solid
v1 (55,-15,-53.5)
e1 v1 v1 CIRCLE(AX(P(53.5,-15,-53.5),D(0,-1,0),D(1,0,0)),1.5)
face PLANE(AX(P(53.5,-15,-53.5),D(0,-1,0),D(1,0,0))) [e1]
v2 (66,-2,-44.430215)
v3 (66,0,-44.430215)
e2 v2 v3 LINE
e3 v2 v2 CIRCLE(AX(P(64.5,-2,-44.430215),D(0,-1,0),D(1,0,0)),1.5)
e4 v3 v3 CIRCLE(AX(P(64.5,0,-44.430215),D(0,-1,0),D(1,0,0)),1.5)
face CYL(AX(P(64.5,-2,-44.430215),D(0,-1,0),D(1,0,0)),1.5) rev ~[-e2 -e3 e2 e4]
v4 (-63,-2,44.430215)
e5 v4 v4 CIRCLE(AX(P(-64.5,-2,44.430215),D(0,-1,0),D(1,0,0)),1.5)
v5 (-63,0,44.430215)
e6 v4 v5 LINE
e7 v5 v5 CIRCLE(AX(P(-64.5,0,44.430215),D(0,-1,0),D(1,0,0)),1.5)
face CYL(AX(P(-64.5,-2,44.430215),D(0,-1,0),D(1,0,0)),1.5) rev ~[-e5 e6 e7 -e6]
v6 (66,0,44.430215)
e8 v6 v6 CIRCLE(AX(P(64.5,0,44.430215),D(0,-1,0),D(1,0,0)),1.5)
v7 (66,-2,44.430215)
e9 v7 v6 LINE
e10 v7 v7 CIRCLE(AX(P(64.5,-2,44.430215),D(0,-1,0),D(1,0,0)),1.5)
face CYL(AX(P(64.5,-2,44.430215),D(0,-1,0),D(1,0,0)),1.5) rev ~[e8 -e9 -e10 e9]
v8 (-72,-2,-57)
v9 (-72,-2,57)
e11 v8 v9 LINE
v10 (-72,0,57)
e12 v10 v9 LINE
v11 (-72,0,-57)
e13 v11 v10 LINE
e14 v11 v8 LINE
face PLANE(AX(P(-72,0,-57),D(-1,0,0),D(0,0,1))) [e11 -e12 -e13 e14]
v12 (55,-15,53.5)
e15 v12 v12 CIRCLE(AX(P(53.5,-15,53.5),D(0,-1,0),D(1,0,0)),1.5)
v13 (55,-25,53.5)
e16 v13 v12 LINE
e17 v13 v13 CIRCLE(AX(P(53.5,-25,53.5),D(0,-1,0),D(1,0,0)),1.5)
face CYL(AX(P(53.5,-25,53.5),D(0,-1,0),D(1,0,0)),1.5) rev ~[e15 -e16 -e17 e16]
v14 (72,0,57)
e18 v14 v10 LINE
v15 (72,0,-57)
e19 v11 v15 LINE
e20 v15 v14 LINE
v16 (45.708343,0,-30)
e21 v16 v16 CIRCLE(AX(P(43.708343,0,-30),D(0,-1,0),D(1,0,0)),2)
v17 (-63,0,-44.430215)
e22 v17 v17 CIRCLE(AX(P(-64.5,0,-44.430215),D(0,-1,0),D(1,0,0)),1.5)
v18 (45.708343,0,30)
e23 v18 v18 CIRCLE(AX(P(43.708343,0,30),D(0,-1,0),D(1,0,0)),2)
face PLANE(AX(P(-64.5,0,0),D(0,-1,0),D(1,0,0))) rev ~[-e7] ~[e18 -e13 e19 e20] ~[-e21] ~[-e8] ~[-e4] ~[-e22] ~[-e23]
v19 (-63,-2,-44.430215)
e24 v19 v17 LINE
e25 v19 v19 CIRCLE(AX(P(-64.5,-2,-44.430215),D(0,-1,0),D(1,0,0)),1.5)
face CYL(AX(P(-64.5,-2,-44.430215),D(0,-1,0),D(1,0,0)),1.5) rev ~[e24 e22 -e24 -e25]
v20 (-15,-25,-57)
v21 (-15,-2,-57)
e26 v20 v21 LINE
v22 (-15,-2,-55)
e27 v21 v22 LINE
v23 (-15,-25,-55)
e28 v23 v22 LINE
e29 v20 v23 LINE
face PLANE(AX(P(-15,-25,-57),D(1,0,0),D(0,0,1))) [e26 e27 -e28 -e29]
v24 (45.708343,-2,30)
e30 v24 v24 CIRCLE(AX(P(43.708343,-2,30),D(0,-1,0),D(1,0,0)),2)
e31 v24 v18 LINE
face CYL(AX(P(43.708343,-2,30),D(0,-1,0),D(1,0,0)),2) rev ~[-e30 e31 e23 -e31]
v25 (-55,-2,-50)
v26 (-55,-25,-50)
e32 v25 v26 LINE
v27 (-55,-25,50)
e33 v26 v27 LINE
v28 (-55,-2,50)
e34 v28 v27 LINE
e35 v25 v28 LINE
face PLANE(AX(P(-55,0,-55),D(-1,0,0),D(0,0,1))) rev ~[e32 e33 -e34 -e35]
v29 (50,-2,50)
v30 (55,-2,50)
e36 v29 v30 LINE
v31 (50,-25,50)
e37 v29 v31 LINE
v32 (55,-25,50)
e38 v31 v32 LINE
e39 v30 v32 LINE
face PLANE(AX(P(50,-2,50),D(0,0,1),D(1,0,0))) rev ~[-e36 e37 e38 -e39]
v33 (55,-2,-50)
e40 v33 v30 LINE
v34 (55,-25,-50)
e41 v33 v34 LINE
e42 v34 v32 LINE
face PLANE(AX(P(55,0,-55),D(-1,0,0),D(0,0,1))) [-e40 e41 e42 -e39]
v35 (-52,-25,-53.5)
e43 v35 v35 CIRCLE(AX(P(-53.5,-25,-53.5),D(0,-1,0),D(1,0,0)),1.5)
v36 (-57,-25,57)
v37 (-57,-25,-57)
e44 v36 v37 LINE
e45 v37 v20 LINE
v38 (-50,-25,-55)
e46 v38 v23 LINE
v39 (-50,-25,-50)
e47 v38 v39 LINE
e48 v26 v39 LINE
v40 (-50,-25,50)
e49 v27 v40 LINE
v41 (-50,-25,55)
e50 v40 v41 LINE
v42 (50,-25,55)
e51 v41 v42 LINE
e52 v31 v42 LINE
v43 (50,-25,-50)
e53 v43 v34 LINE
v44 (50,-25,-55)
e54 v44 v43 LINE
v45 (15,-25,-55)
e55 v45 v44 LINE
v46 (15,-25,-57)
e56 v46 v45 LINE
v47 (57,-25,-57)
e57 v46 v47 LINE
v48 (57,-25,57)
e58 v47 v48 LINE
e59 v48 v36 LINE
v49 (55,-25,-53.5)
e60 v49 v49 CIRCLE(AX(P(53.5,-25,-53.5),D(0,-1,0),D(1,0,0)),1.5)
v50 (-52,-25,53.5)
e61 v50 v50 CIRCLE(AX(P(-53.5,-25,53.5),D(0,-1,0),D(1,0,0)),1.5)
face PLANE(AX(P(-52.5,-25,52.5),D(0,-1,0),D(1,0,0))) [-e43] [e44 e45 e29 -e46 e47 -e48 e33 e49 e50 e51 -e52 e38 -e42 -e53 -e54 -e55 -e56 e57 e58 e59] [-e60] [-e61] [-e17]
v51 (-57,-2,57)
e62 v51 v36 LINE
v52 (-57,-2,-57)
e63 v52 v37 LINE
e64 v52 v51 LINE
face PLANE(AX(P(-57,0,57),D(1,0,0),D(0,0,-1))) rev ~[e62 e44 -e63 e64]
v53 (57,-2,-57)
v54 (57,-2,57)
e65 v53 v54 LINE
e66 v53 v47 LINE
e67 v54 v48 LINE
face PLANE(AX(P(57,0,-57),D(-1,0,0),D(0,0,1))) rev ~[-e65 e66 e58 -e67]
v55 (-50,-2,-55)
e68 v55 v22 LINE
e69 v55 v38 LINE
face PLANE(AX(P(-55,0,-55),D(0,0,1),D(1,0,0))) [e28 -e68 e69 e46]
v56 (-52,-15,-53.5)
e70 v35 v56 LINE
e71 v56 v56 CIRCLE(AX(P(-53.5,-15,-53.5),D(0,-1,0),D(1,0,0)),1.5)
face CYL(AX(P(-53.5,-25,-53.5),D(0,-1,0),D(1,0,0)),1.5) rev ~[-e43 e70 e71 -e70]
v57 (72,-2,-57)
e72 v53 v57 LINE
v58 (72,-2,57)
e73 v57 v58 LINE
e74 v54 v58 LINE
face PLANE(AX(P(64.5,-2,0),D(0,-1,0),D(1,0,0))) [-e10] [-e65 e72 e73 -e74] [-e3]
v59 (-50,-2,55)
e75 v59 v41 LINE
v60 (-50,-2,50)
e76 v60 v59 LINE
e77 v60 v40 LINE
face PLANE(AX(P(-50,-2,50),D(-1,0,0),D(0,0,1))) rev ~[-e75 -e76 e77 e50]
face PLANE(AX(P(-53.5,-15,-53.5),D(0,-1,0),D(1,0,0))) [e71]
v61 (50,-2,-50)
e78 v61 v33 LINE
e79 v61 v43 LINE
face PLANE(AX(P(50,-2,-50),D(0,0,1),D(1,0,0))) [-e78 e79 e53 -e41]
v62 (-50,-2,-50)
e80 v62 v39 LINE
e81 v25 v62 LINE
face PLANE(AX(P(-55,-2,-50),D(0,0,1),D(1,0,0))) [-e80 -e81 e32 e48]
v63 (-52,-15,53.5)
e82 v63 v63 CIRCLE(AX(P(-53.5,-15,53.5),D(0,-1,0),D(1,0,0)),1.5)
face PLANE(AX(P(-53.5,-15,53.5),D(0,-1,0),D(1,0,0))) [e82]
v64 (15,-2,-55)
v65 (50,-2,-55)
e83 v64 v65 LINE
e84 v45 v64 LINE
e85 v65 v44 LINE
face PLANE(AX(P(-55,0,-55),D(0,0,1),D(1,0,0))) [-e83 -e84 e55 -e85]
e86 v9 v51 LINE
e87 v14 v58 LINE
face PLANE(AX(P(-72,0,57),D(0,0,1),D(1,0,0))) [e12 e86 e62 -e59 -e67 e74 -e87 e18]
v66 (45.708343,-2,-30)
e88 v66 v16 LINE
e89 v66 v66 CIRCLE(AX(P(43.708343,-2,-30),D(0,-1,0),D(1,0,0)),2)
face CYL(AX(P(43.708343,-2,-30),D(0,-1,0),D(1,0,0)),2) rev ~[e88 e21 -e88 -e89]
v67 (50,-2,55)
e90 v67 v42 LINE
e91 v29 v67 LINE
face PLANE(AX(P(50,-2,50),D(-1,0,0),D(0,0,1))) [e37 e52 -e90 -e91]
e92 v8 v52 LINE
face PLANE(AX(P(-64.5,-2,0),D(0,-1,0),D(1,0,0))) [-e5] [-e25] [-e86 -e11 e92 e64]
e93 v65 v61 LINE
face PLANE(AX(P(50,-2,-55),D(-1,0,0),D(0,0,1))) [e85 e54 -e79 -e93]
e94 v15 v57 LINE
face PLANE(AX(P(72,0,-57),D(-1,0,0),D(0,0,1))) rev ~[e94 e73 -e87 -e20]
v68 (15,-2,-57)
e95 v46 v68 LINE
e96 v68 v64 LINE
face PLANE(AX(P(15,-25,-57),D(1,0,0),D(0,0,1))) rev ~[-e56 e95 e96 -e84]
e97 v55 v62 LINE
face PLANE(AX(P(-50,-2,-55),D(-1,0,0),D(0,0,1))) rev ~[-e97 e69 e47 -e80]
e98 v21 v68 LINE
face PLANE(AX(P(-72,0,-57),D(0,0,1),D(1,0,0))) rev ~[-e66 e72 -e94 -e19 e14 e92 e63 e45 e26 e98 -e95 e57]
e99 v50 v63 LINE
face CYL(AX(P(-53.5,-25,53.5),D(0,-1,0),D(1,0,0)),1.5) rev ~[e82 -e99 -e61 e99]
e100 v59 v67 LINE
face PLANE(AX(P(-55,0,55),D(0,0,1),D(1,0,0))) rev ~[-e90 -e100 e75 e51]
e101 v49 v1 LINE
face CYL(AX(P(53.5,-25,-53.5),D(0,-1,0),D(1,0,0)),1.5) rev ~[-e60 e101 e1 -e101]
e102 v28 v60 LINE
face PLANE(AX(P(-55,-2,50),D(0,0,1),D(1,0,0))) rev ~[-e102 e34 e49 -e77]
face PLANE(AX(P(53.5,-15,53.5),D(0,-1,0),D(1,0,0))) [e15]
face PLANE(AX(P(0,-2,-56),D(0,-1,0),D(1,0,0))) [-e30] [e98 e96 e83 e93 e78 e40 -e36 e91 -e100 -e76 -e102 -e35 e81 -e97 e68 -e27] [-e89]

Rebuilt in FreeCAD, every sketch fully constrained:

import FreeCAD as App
import Part
import Sketcher
Q = App.Units.Quantity

doc = App.newDocument("Part")
body = doc.addObject("PartDesign::Body", "Body")

# Sketch on XZ plane
sketch1 = body.newObject("Sketcher::SketchObject", "Sketch")
sketch1.AttachmentSupport = (doc.getObject("XZ_Plane"), [""])
sketch1.MapMode = "FlatFace"
sketch1.addGeometry([
    Part.LineSegment(App.Vector(-55, 55, 0), App.Vector(-55, -55, 0)),
    Part.LineSegment(App.Vector(-55, -55, 0), App.Vector(55, -55, 0)),
    Part.LineSegment(App.Vector(55, -55, 0), App.Vector(55, 55, 0)),
    Part.LineSegment(App.Vector(55, 55, 0), App.Vector(-55, 55, 0)),
], False)
sketch1.addConstraint([
    Sketcher.Constraint("Coincident", 0, 2, 1, 1),
    Sketcher.Constraint("Coincident", 1, 2, 2, 1),
    Sketcher.Constraint("Coincident", 2, 2, 3, 1),
    Sketcher.Constraint("Coincident", 3, 2, 0, 1),
    Sketcher.Constraint("Vertical", 0),
    Sketcher.Constraint("Horizontal", 1),
    Sketcher.Constraint("Vertical", 2),
    Sketcher.Constraint("Horizontal", 3),
    Sketcher.Constraint("Symmetric", 0, 2, 2, 2, -1, 1),
    Sketcher.Constraint("Equal", 3, 0),
    Sketcher.Constraint("DistanceX", 1, 1, 1, 2, Q("110 mm")),
])
pad1 = body.newObject("PartDesign::Pad", "Pad")
pad1.Profile = sketch1
pad1.Length = 2

# Sketch on XZ plane
sketch2 = body.newObject("Sketcher::SketchObject", "Sketch001")
sketch2.AttachmentSupport = (doc.getObject("XZ_Plane"), [""])
sketch2.MapMode = "FlatFace"
sketch2.addGeometry([
    Part.LineSegment(App.Vector(57, 57, 0), App.Vector(-57, 57, 0)),  # 0
    Part.LineSegment(App.Vector(-57, 57, 0), App.Vector(-57, -57, 0)),  # 1
    Part.LineSegment(App.Vector(-57, -57, 0), App.Vector(57, -57, 0)),  # 2
    Part.LineSegment(App.Vector(57, -57, 0), App.Vector(57, 57, 0)),  # 3
    Part.LineSegment(App.Vector(55, -55, 0), App.Vector(-55, -55, 0)),  # 4
    Part.LineSegment(App.Vector(-55, -55, 0), App.Vector(-55, 55, 0)),  # 5
    Part.LineSegment(App.Vector(-55, 55, 0), App.Vector(55, 55, 0)),  # 6
    Part.LineSegment(App.Vector(55, 55, 0), App.Vector(55, -55, 0)),  # 7
], False)
sketch2.addConstraint([
    Sketcher.Constraint("Coincident", 0, 2, 1, 1),
    Sketcher.Constraint("Coincident", 1, 2, 2, 1),
    Sketcher.Constraint("Coincident", 2, 2, 3, 1),
    Sketcher.Constraint("Coincident", 3, 2, 0, 1),
    Sketcher.Constraint("Coincident", 4, 2, 5, 1),
    Sketcher.Constraint("Coincident", 5, 2, 6, 1),
    Sketcher.Constraint("Coincident", 6, 2, 7, 1),
    Sketcher.Constraint("Coincident", 7, 2, 4, 1),
    Sketcher.Constraint("Horizontal", 0),
    Sketcher.Constraint("Vertical", 1),
    Sketcher.Constraint("Horizontal", 2),
    Sketcher.Constraint("Vertical", 3),
    Sketcher.Constraint("Horizontal", 4),
    Sketcher.Constraint("Vertical", 5),
    Sketcher.Constraint("Horizontal", 6),
    Sketcher.Constraint("Vertical", 7),
    Sketcher.Constraint("Symmetric", 0, 2, 2, 2, -1, 1),
    Sketcher.Constraint("Symmetric", 4, 2, 6, 2, -1, 1),
    Sketcher.Constraint("Equal", 2, 1),
    Sketcher.Constraint("Equal", 6, 5),
    Sketcher.Constraint("DistanceX", 0, 2, 0, 1, Q("114 mm")),
    Sketcher.Constraint("DistanceX", 4, 2, 4, 1, Q("110 mm")),
])
pad2 = body.newObject("PartDesign::Pad", "Pad001")
pad2.Profile = sketch2
pad2.Length = 25

# Sketch on XZ plane
sketch3 = body.newObject("Sketcher::SketchObject", "Sketch002")
sketch3.AttachmentSupport = (doc.getObject("XZ_Plane"), [""])
sketch3.MapMode = "FlatFace"
sketch3.AttachmentOffset = App.Placement(App.Vector(0, 0, 2), App.Rotation())
sketch3.addGeometry([
    Part.LineSegment(App.Vector(-55, 55, 0), App.Vector(-55, 50, 0)),  # 0
    Part.LineSegment(App.Vector(-55, 50, 0), App.Vector(-50, 50, 0)),  # 1
    Part.LineSegment(App.Vector(-50, 50, 0), App.Vector(-50, 55, 0)),  # 2
    Part.LineSegment(App.Vector(-50, 55, 0), App.Vector(-55, 55, 0)),  # 3
    Part.LineSegment(App.Vector(50, 55, 0), App.Vector(50, 50, 0)),  # 4
    Part.LineSegment(App.Vector(50, 50, 0), App.Vector(55, 50, 0)),  # 5
    Part.LineSegment(App.Vector(55, 50, 0), App.Vector(55, 55, 0)),  # 6
    Part.LineSegment(App.Vector(55, 55, 0), App.Vector(50, 55, 0)),  # 7
    Part.LineSegment(App.Vector(-55, -50, 0), App.Vector(-55, -55, 0)),  # 8
    Part.LineSegment(App.Vector(-55, -55, 0), App.Vector(-50, -55, 0)),  # 9
    Part.LineSegment(App.Vector(-50, -55, 0), App.Vector(-50, -50, 0)),  # 10
    Part.LineSegment(App.Vector(-50, -50, 0), App.Vector(-55, -50, 0)),  # 11
    Part.LineSegment(App.Vector(50, -50, 0), App.Vector(50, -55, 0)),  # 12
    Part.LineSegment(App.Vector(50, -55, 0), App.Vector(55, -55, 0)),  # 13
    Part.LineSegment(App.Vector(55, -55, 0), App.Vector(55, -50, 0)),  # 14
    Part.LineSegment(App.Vector(55, -50, 0), App.Vector(50, -50, 0)),  # 15
], False)
sketch3.addConstraint([
    Sketcher.Constraint("Coincident", 0, 2, 1, 1),
    Sketcher.Constraint("Coincident", 1, 2, 2, 1),
    Sketcher.Constraint("Coincident", 2, 2, 3, 1),
    Sketcher.Constraint("Coincident", 3, 2, 0, 1),
    Sketcher.Constraint("Coincident", 4, 2, 5, 1),
    Sketcher.Constraint("Coincident", 5, 2, 6, 1),
    Sketcher.Constraint("Coincident", 6, 2, 7, 1),
    Sketcher.Constraint("Coincident", 7, 2, 4, 1),
    Sketcher.Constraint("Coincident", 8, 2, 9, 1),
    Sketcher.Constraint("Coincident", 9, 2, 10, 1),
    Sketcher.Constraint("Coincident", 10, 2, 11, 1),
    Sketcher.Constraint("Coincident", 11, 2, 8, 1),
    Sketcher.Constraint("Coincident", 12, 2, 13, 1),
    Sketcher.Constraint("Coincident", 13, 2, 14, 1),
    Sketcher.Constraint("Coincident", 14, 2, 15, 1),
    Sketcher.Constraint("Coincident", 15, 2, 12, 1),
    Sketcher.Constraint("Vertical", 0),
    Sketcher.Constraint("Horizontal", 1),
    Sketcher.Constraint("Vertical", 2),
    Sketcher.Constraint("Horizontal", 3),
    Sketcher.Constraint("Vertical", 4),
    Sketcher.Constraint("Horizontal", 5),
    Sketcher.Constraint("Vertical", 6),
    Sketcher.Constraint("Horizontal", 7),
    Sketcher.Constraint("Vertical", 8),
    Sketcher.Constraint("Horizontal", 9),
    Sketcher.Constraint("Vertical", 10),
    Sketcher.Constraint("Horizontal", 11),
    Sketcher.Constraint("Vertical", 12),
    Sketcher.Constraint("Horizontal", 13),
    Sketcher.Constraint("Vertical", 14),
    Sketcher.Constraint("Horizontal", 15),
    Sketcher.Constraint("Symmetric", 6, 2, 8, 2, -1, 1),
    Sketcher.Constraint("Symmetric", 4, 2, 10, 2, -1, 1),
    Sketcher.Constraint("Symmetric", 2, 2, 12, 2, -1, 1),
    Sketcher.Constraint("Symmetric", 0, 2, 14, 2, -1, 1),
    Sketcher.Constraint("Symmetric", 1, 2, 4, 2, -2),
    Sketcher.Constraint("Symmetric", 3, 2, 6, 2, -2),
    Sketcher.Constraint("Equal", 15, 0),
    Sketcher.Constraint("DistanceX", 1, 1, 1, 2, Q("5 mm")),
    Sketcher.Constraint("DistanceX", 0, 2, -1, 1, Q("55 mm")),
    Sketcher.Constraint("DistanceY", -1, 1, 0, 2, Q("50 mm")),
])
pad3 = body.newObject("PartDesign::Pad", "Pad002")
pad3.Profile = sketch3
pad3.Length = 23

# Sketch on XZ plane
sketch4 = body.newObject("Sketcher::SketchObject", "Sketch003")
sketch4.AttachmentSupport = (doc.getObject("XZ_Plane"), [""])
sketch4.MapMode = "FlatFace"
sketch4.AttachmentOffset = App.Placement(App.Vector(0, 0, 25), App.Rotation())
sketch4.addGeometry([
    Part.Circle(App.Vector(-53.5, 53.5, 0), App.Vector(0, 0, 1), 1.5),
    Part.Circle(App.Vector(53.5, 53.5, 0), App.Vector(0, 0, 1), 1.5),
    Part.Circle(App.Vector(-53.5, -53.5, 0), App.Vector(0, 0, 1), 1.5),
    Part.Circle(App.Vector(53.5, -53.5, 0), App.Vector(0, 0, 1), 1.5),
], False)
sketch4.addConstraint([
    Sketcher.Constraint("Equal", 0, 1),
    Sketcher.Constraint("Equal", 1, 2),
    Sketcher.Constraint("Equal", 2, 3),
    Sketcher.Constraint("Symmetric", 1, 3, 2, 3, -1, 1),
    Sketcher.Constraint("Symmetric", 0, 3, 3, 3, -1, 1),
    Sketcher.Constraint("Symmetric", 0, 3, 1, 3, -2),
    Sketcher.Constraint("Diameter", 0, Q("3 mm")),
    Sketcher.Constraint("DistanceX", 0, 3, 1, 3, Q("107 mm")),
    Sketcher.Constraint("DistanceY", 2, 3, 0, 3, Q("107 mm")),
])
pocket1 = body.newObject("PartDesign::Pocket", "Pocket")
pocket1.Profile = sketch4
pocket1.Length = 10

# Sketch on XZ plane
sketch5 = body.newObject("Sketcher::SketchObject", "Sketch004")
sketch5.AttachmentSupport = (doc.getObject("XZ_Plane"), [""])
sketch5.MapMode = "FlatFace"
sketch5.addGeometry([
    Part.LineSegment(App.Vector(-72, 57, 0), App.Vector(-72, -57, 0)),  # 0
    Part.LineSegment(App.Vector(-72, -57, 0), App.Vector(-57, -57, 0)),  # 1
    Part.LineSegment(App.Vector(-57, -57, 0), App.Vector(-57, 57, 0)),  # 2
    Part.LineSegment(App.Vector(-57, 57, 0), App.Vector(-72, 57, 0)),  # 3
    Part.LineSegment(App.Vector(57, 57, 0), App.Vector(57, -57, 0)),  # 4
    Part.LineSegment(App.Vector(57, -57, 0), App.Vector(72, -57, 0)),  # 5
    Part.LineSegment(App.Vector(72, -57, 0), App.Vector(72, 57, 0)),  # 6
    Part.LineSegment(App.Vector(72, 57, 0), App.Vector(57, 57, 0)),  # 7
], False)
sketch5.addConstraint([
    Sketcher.Constraint("Coincident", 0, 2, 1, 1),
    Sketcher.Constraint("Coincident", 1, 2, 2, 1),
    Sketcher.Constraint("Coincident", 2, 2, 3, 1),
    Sketcher.Constraint("Coincident", 3, 2, 0, 1),
    Sketcher.Constraint("Coincident", 4, 2, 5, 1),
    Sketcher.Constraint("Coincident", 5, 2, 6, 1),
    Sketcher.Constraint("Coincident", 6, 2, 7, 1),
    Sketcher.Constraint("Coincident", 7, 2, 4, 1),
    Sketcher.Constraint("Vertical", 0),
    Sketcher.Constraint("Horizontal", 1),
    Sketcher.Constraint("Vertical", 2),
    Sketcher.Constraint("Horizontal", 3),
    Sketcher.Constraint("Vertical", 4),
    Sketcher.Constraint("Horizontal", 5),
    Sketcher.Constraint("Vertical", 6),
    Sketcher.Constraint("Horizontal", 7),
    Sketcher.Constraint("Symmetric", 2, 2, 4, 2, -1, 1),
    Sketcher.Constraint("Symmetric", 0, 2, 6, 2, -1, 1),
    Sketcher.Constraint("Horizontal", 1, 2, 4, 2),
    Sketcher.Constraint("DistanceX", 1, 1, 1, 2, Q("15 mm")),
    Sketcher.Constraint("DistanceY", 0, 2, 0, 1, Q("114 mm")),
    Sketcher.Constraint("DistanceX", 0, 2, -1, 1, Q("72 mm")),
])
pad4 = body.newObject("PartDesign::Pad", "Pad003")
pad4.Profile = sketch5
pad4.Length = 2

# Sketch on XZ plane
sketch6 = body.newObject("Sketcher::SketchObject", "Sketch005")
sketch6.AttachmentSupport = (doc.getObject("XZ_Plane"), [""])
sketch6.MapMode = "FlatFace"
sketch6.AttachmentOffset = App.Placement(App.Vector(0, 0, 2), App.Rotation())
sketch6.addGeometry([
    Part.Circle(App.Vector(-64.5, 44.4, 0), App.Vector(0, 0, 1), 1.5),
    Part.Circle(App.Vector(64.5, 44.4, 0), App.Vector(0, 0, 1), 1.5),
    Part.Circle(App.Vector(-64.5, -44.4, 0), App.Vector(0, 0, 1), 1.5),
    Part.Circle(App.Vector(64.5, -44.4, 0), App.Vector(0, 0, 1), 1.5),
], False)
sketch6.addConstraint([
    Sketcher.Constraint("Equal", 0, 1),
    Sketcher.Constraint("Equal", 1, 2),
    Sketcher.Constraint("Equal", 2, 3),
    Sketcher.Constraint("Symmetric", 1, 3, 2, 3, -1, 1),
    Sketcher.Constraint("Symmetric", 0, 3, 3, 3, -1, 1),
    Sketcher.Constraint("Symmetric", 0, 3, 1, 3, -2),
    Sketcher.Constraint("Diameter", 0, Q("3 mm")),
    Sketcher.Constraint("DistanceX", 0, 3, 1, 3, Q("129 mm")),
    Sketcher.Constraint("DistanceY", 2, 3, 0, 3, Q("88.86043 mm")),
])
pocket2 = body.newObject("PartDesign::Pocket", "Pocket001")
pocket2.Profile = sketch6
pocket2.Type = "ThroughAll"

# Sketch on XZ plane
sketch7 = body.newObject("Sketcher::SketchObject", "Sketch006")
sketch7.AttachmentSupport = (doc.getObject("XZ_Plane"), [""])
sketch7.MapMode = "FlatFace"
sketch7.AttachmentOffset = App.Placement(App.Vector(0, 0, 25), App.Rotation())
sketch7.addGeometry([
    Part.LineSegment(App.Vector(-15, -55, 0), App.Vector(-15, -57, 0)),
    Part.LineSegment(App.Vector(-15, -57, 0), App.Vector(15, -57, 0)),
    Part.LineSegment(App.Vector(15, -57, 0), App.Vector(15, -55, 0)),
    Part.LineSegment(App.Vector(15, -55, 0), App.Vector(-15, -55, 0)),
], False)
sketch7.addConstraint([
    Sketcher.Constraint("Coincident", 0, 2, 1, 1),
    Sketcher.Constraint("Coincident", 1, 2, 2, 1),
    Sketcher.Constraint("Coincident", 2, 2, 3, 1),
    Sketcher.Constraint("Coincident", 3, 2, 0, 1),
    Sketcher.Constraint("Vertical", 0),
    Sketcher.Constraint("Horizontal", 1),
    Sketcher.Constraint("Vertical", 2),
    Sketcher.Constraint("Horizontal", 3),
    Sketcher.Constraint("DistanceX", 1, 1, 1, 2, Q("30 mm")),
    Sketcher.Constraint("DistanceY", 0, 2, 0, 1, Q("2 mm")),
    Sketcher.Constraint("DistanceX", 0, 2, -1, 1, Q("15 mm")),
    Sketcher.Constraint("DistanceY", 0, 2, -1, 1, Q("57 mm")),
])
pocket3 = body.newObject("PartDesign::Pocket", "Pocket002")
pocket3.Profile = sketch7
pocket3.Length = 23

# Sketch on XZ plane
sketch8 = body.newObject("Sketcher::SketchObject", "Sketch007")
sketch8.AttachmentSupport = (doc.getObject("XZ_Plane"), [""])
sketch8.MapMode = "FlatFace"
sketch8.AttachmentOffset = App.Placement(App.Vector(0, 0, 2), App.Rotation())
sketch8.addGeometry([
    Part.Circle(App.Vector(43.7, 30, 0), App.Vector(0, 0, 1), 2),
    Part.Circle(App.Vector(43.7, -30, 0), App.Vector(0, 0, 1), 2),
], False)
sketch8.addConstraint([
    Sketcher.Constraint("Equal", 0, 1),
    Sketcher.Constraint("Symmetric", 0, 3, 1, 3, -1),
    Sketcher.Constraint("Diameter", 0, Q("4 mm")),
    Sketcher.Constraint("DistanceY", -1, 1, 0, 3, Q("30 mm")),
    Sketcher.Constraint("DistanceX", -1, 1, 0, 3, Q("43.708343 mm")),
])
pocket4 = body.newObject("PartDesign::Pocket", "Pocket003")
pocket4.Profile = sketch8
pocket4.Type = "ThroughAll"

doc.recompute()
